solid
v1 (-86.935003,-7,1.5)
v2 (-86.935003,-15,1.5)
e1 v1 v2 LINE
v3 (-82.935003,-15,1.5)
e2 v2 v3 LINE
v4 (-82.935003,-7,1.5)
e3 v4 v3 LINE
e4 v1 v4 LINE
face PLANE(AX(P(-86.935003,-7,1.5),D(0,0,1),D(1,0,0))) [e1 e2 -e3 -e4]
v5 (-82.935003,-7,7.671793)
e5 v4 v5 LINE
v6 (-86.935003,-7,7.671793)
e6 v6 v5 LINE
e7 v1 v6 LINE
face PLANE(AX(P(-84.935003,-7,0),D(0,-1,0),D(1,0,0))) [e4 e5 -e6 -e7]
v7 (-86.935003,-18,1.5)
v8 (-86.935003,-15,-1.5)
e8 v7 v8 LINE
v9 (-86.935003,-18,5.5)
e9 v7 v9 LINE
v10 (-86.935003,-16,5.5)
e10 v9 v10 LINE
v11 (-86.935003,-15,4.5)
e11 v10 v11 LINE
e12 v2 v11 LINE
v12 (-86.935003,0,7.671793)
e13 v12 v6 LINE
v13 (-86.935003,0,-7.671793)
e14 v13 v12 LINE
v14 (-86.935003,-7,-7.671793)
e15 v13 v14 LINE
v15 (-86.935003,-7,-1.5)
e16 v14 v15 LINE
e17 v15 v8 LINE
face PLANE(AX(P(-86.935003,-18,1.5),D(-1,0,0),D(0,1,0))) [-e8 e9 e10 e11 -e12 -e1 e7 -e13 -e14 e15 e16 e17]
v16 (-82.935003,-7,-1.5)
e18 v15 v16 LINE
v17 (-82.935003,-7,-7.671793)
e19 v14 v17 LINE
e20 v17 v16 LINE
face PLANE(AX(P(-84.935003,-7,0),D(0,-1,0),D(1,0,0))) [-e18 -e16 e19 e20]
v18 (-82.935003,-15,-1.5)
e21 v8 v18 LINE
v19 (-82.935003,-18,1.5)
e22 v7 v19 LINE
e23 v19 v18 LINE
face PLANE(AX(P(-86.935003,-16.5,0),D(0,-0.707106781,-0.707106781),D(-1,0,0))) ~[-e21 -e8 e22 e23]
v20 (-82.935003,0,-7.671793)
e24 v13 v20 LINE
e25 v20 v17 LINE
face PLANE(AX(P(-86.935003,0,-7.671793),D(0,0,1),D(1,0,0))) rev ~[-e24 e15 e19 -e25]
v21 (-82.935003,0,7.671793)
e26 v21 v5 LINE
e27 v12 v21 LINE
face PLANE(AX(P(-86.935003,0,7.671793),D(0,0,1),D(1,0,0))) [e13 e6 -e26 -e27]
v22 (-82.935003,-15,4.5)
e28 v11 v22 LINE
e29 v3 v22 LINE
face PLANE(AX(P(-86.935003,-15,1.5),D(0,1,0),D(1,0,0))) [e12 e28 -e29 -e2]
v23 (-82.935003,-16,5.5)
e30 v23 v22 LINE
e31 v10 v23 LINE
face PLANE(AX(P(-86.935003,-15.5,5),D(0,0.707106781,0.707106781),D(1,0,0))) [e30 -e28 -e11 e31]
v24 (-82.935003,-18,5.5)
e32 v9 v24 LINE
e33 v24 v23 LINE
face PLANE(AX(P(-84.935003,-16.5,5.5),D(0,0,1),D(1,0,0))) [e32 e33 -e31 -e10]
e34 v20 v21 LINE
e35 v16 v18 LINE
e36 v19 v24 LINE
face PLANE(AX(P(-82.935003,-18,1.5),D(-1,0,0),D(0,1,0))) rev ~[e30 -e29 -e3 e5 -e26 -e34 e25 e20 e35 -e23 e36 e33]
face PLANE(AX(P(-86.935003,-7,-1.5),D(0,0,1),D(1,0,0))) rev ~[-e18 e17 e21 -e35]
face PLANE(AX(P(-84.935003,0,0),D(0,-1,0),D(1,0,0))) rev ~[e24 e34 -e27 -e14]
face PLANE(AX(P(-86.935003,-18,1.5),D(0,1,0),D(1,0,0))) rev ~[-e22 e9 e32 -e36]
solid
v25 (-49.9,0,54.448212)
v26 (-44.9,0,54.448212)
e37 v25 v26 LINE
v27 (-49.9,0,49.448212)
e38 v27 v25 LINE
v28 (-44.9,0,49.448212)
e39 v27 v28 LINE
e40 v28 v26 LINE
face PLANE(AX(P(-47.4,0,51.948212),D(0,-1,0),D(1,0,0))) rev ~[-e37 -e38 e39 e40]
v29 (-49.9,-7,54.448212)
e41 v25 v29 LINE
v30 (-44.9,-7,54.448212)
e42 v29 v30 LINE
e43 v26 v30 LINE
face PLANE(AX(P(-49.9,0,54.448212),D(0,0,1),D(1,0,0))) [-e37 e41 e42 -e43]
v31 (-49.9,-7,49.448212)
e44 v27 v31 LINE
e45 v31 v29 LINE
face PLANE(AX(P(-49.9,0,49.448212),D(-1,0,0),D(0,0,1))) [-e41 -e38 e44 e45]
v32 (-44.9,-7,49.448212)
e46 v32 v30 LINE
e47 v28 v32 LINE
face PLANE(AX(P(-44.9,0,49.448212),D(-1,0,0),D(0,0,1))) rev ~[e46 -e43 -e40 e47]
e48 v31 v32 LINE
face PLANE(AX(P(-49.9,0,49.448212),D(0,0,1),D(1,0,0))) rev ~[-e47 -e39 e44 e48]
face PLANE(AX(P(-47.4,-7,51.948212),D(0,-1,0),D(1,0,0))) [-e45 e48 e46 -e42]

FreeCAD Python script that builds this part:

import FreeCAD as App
import Part
import Sketcher
from FreeCAD import Vector
Q = App.Units.Quantity


def edges_at(feature, points):
    """Names of the edges that pass closest to the given points."""
    edges = feature.Shape.Edges
    near = lambda p: min(range(len(edges)), key=lambda i: edges[i].distToShape(Part.Vertex(*p))[0])
    return sorted({f"Edge{near(p) + 1}" for p in points})

doc = App.newDocument("Part")
body = doc.addObject("PartDesign::Body", "Body")

# Sketch on XZ plane
sketch1 = doc.addObject("Sketcher::SketchObject", "Sketch")
body.addObject(sketch1)
sketch1.AttachmentSupport = (doc.XZ_Plane, [""])
sketch1.MapMode = "FlatFace"
sketch1.addGeometry(Part.LineSegment(Vector(-50, 54, 0), Vector(-50, 49, 0)), False)
sketch1.addGeometry(Part.LineSegment(Vector(-50, 49, 0), Vector(-45, 49, 0)), False)
sketch1.addGeometry(Part.LineSegment(Vector(-45, 49, 0), Vector(-45, 54, 0)), False)
sketch1.addGeometry(Part.LineSegment(Vector(-45, 54, 0), Vector(-50, 54, 0)), False)
sketch1.addConstraint(Sketcher.Constraint("Coincident", 0, 2, 1, 1))
sketch1.addConstraint(Sketcher.Constraint("Coincident", 1, 2, 2, 1))
sketch1.addConstraint(Sketcher.Constraint("Coincident", 2, 2, 3, 1))
sketch1.addConstraint(Sketcher.Constraint("Coincident", 3, 2, 0, 1))
sketch1.addConstraint(Sketcher.Constraint("Vertical", 0))
sketch1.addConstraint(Sketcher.Constraint("Horizontal", 1))
sketch1.addConstraint(Sketcher.Constraint("Vertical", 2))
sketch1.addConstraint(Sketcher.Constraint("Horizontal", 3))
sketch1.addConstraint(Sketcher.Constraint("Equal", 3, 0))
sketch1.addConstraint(Sketcher.Constraint("DistanceX", 1, 1, 1, 2, Q("5 mm")))
sketch1.addConstraint(Sketcher.Constraint("DistanceX", 0, 2, -1, 1, Q("49.9 mm")))
sketch1.addConstraint(Sketcher.Constraint("DistanceY", -1, 1, 0, 2, Q("49.448212 mm")))
pad1 = doc.addObject("PartDesign::Pad", "Pad")
body.addObject(pad1)
pad1.Profile = sketch1
pad1.Length = 7
body2 = doc.addObject("PartDesign::Body", "Body001")

# Sketch on XZ plane
sketch2 = doc.addObject("Sketcher::SketchObject", "Sketch001")
body2.addObject(sketch2)
sketch2.AttachmentSupport = (doc.getObject("XZ_Plane001"), [""])
sketch2.MapMode = "FlatFace"
sketch2.addGeometry(Part.LineSegment(Vector(-86.9, 7.7, 0), Vector(-86.9, -7.7, 0)), False)
sketch2.addGeometry(Part.LineSegment(Vector(-86.9, -7.7, 0), Vector(-82.9, -7.7, 0)), False)
sketch2.addGeometry(Part.LineSegment(Vector(-82.9, -7.7, 0), Vector(-82.9, 7.7, 0)), False)
sketch2.addGeometry(Part.LineSegment(Vector(-82.9, 7.7, 0), Vector(-86.9, 7.7, 0)), False)
sketch2.addConstraint(Sketcher.Constraint("Coincident", 0, 2, 1, 1))
sketch2.addConstraint(Sketcher.Constraint("Coincident", 1, 2, 2, 1))
sketch2.addConstraint(Sketcher.Constraint("Coincident", 2, 2, 3, 1))
sketch2.addConstraint(Sketcher.Constraint("Coincident", 3, 2, 0, 1))
sketch2.addConstraint(Sketcher.Constraint("Vertical", 0))
sketch2.addConstraint(Sketcher.Constraint("Horizontal", 1))
sketch2.addConstraint(Sketcher.Constraint("Vertical", 2))
sketch2.addConstraint(Sketcher.Constraint("Horizontal", 3))
sketch2.addConstraint(Sketcher.Constraint("DistanceX", 1, 1, 1, 2, Q("4 mm")))
sketch2.addConstraint(Sketcher.Constraint("DistanceY", 0, 2, 0, 1, Q("15.343586 mm")))
sketch2.addConstraint(Sketcher.Constraint("DistanceX", 0, 2, -1, 1, Q("86.935003 mm")))
sketch2.addConstraint(Sketcher.Constraint("DistanceY", 0, 2, -1, 1, Q("7.671793 mm")))
pad2 = doc.addObject("PartDesign::Pad", "Pad001")
body2.addObject(pad2)
pad2.Profile = sketch2
pad2.Length = 7

# Sketch on XZ plane
sketch3 = doc.addObject("Sketcher::SketchObject", "Sketch002")
body2.addObject(sketch3)
sketch3.AttachmentSupport = (doc.getObject("XZ_Plane001"), [""])
sketch3.MapMode = "FlatFace"
sketch3.AttachmentOffset = App.Placement(Vector(0, 0, 7), App.Rotation())
sketch3.addGeometry(Part.LineSegment(Vector(-86.9, 1.5, 0), Vector(-86.9, -1.5, 0)), False)
sketch3.addGeometry(Part.LineSegment(Vector(-86.9, -1.5, 0), Vector(-82.9, -1.5, 0)), False)
sketch3.addGeometry(Part.LineSegment(Vector(-82.9, -1.5, 0), Vector(-82.9, 1.5, 0)), False)
sketch3.addGeometry(Part.LineSegment(Vector(-82.9, 1.5, 0), Vector(-86.9, 1.5, 0)), False)
sketch3.addConstraint(Sketcher.Constraint("Coincident", 0, 2, 1, 1))
sketch3.addConstraint(Sketcher.Constraint("Coincident", 1, 2, 2, 1))
sketch3.addConstraint(Sketcher.Constraint("Coincident", 2, 2, 3, 1))
sketch3.addConstraint(Sketcher.Constraint("Coincident", 3, 2, 0, 1))
sketch3.addConstraint(Sketcher.Constraint("Vertical", 0))
sketch3.addConstraint(Sketcher.Constraint("Horizontal", 1))
sketch3.addConstraint(Sketcher.Constraint("Vertical", 2))
sketch3.addConstraint(Sketcher.Constraint("Horizontal", 3))
sketch3.addConstraint(Sketcher.Constraint("DistanceX", 1, 1, 1, 2, Q("4 mm")))
sketch3.addConstraint(Sketcher.Constraint("DistanceY", 0, 2, 0, 1, Q("3 mm")))
sketch3.addConstraint(Sketcher.Constraint("DistanceY", 0, 2, -1, 1, Q("1.5 mm")))
sketch3.addConstraint(Sketcher.Constraint("DistanceX", 0, 2, -1, 1, Q("86.935003 mm")))
pad3 = doc.addObject("PartDesign::Pad", "Pad002")
body2.addObject(pad3)
pad3.Profile = sketch3
pad3.Length = 11

# Sketch on XY plane
sketch4 = doc.addObject("Sketcher::SketchObject", "Sketch003")
body2.addObject(sketch4)
sketch4.AttachmentSupport = (doc.getObject("XY_Plane001"), [""])
sketch4.MapMode = "FlatFace"
sketch4.AttachmentOffset = App.Placement(Vector(0, 0, 1.5), App.Rotation())
sketch4.addGeometry(Part.LineSegment(Vector(-86.9, -15, 0), Vector(-86.9, -18, 0)), False)
sketch4.addGeometry(Part.LineSegment(Vector(-86.9, -18, 0), Vector(-82.9, -18, 0)), False)
sketch4.addGeometry(Part.LineSegment(Vector(-82.9, -18, 0), Vector(-82.9, -15, 0)), False)
sketch4.addGeometry(Part.LineSegment(Vector(-82.9, -15, 0), Vector(-86.9, -15, 0)), False)
sketch4.addConstraint(Sketcher.Constraint("Coincident", 0, 2, 1, 1))
sketch4.addConstraint(Sketcher.Constraint("Coincident", 1, 2, 2, 1))
sketch4.addConstraint(Sketcher.Constraint("Coincident", 2, 2, 3, 1))
sketch4.addConstraint(Sketcher.Constraint("Coincident", 3, 2, 0, 1))
sketch4.addConstraint(Sketcher.Constraint("Vertical", 0))
sketch4.addConstraint(Sketcher.Constraint("Horizontal", 1))
sketch4.addConstraint(Sketcher.Constraint("Vertical", 2))
sketch4.addConstraint(Sketcher.Constraint("Horizontal", 3))
sketch4.addConstraint(Sketcher.Constraint("DistanceX", 1, 1, 1, 2, Q("4 mm")))
sketch4.addConstraint(Sketcher.Constraint("DistanceY", 0, 2, 0, 1, Q("3 mm")))
sketch4.addConstraint(Sketcher.Constraint("DistanceY", 0, 2, -1, 1, Q("18 mm")))
sketch4.addConstraint(Sketcher.Constraint("DistanceX", 0, 2, -1, 1, Q("86.935003 mm")))
pad4 = doc.addObject("PartDesign::Pad", "Pad003")
body2.addObject(pad4)
pad4.Profile = sketch4
pad4.Length = 4
doc.recompute()

chamfer = doc.addObject("PartDesign::Chamfer", "Chamfer")
body2.addObject(chamfer)
chamfer.Base = (pad4, edges_at(pad4, [(-84.935, -18, -1.5)]))
chamfer.Size = 3
doc.recompute()

chamfer2 = doc.addObject("PartDesign::Chamfer", "Chamfer001")
body2.addObject(chamfer2)
chamfer2.Base = (chamfer, edges_at(chamfer, [(-84.935, -15, 5.5)]))
chamfer2.Size = 1

doc.recompute()
